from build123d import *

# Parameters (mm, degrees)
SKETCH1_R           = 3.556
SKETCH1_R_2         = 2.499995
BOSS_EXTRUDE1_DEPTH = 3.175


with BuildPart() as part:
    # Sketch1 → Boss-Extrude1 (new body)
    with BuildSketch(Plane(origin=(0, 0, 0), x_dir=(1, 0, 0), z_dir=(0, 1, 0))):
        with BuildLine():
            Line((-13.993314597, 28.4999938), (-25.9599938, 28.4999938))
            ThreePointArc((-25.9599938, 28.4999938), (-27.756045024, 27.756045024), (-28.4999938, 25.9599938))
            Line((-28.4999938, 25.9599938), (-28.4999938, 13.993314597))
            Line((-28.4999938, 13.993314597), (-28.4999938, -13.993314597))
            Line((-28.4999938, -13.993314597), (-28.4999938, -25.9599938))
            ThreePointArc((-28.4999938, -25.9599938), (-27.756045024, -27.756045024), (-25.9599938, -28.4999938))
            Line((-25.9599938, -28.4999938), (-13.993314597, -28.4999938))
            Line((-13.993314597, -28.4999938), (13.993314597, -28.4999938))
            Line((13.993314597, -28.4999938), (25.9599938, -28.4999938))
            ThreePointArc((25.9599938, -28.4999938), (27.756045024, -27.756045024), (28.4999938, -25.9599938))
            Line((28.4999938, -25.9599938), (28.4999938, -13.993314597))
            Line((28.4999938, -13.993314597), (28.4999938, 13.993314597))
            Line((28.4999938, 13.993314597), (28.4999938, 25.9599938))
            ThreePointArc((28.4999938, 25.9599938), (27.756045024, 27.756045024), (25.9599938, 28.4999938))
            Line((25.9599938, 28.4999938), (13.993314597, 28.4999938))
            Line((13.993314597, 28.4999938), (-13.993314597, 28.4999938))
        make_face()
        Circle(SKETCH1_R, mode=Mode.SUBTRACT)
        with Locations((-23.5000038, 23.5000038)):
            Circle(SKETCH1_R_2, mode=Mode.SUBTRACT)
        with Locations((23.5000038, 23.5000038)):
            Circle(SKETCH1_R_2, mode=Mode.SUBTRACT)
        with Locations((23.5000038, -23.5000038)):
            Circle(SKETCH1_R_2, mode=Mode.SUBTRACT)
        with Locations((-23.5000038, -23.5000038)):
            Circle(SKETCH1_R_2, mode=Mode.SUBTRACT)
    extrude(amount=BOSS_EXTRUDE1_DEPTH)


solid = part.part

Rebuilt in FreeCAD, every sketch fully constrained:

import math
import FreeCAD as App
import Part
import Sketcher
from FreeCAD import Vector
Q = App.Units.Quantity

doc = App.newDocument("Part")
body = doc.addObject("PartDesign::Body", "Body")

# Sketch on XZ plane
sketch1 = doc.addObject("Sketcher::SketchObject", "Sketch")
body.addObject(sketch1)
sketch1.AttachmentSupport = (doc.XZ_Plane, [""])
sketch1.MapMode = "FlatFace"
sketch1.addGeometry(Part.ArcOfCircle(Part.Circle(Vector(-25.959994, -25.959994, 0), Vector(0, 0, 1), 2.54), math.radians(-180), math.radians(-90)), False)
sketch1.addGeometry(Part.LineSegment(Vector(-28.499994, -25.959994, 0), Vector(-28.499994, 25.959994, 0)), False)
sketch1.addGeometry(Part.ArcOfCircle(Part.Circle(Vector(-25.959994, 25.959994, 0), Vector(0, 0, 1), 2.54), math.radians(90), math.radians(180)), False)
sketch1.addGeometry(Part.LineSegment(Vector(-25.959994, 28.499994, 0), Vector(25.959994, 28.499994, 0)), False)
sketch1.addGeometry(Part.ArcOfCircle(Part.Circle(Vector(25.959994, 25.959994, 0), Vector(0, 0, 1), 2.54), math.radians(0), math.radians(90)), False)
sketch1.addGeometry(Part.LineSegment(Vector(28.499994, 25.959994, 0), Vector(28.499994, -25.959994, 0)), False)
sketch1.addGeometry(Part.ArcOfCircle(Part.Circle(Vector(25.959994, -25.959994, 0), Vector(0, 0, 1), 2.54), math.radians(-90), math.radians(0)), False)
sketch1.addGeometry(Part.LineSegment(Vector(25.959994, -28.499994, 0), Vector(-25.959994, -28.499994, 0)), False)
sketch1.addGeometry(Part.Circle(Vector(-23.500004, 23.500004, 0), Vector(0, 0, 1), 2.499995), False)
sketch1.addGeometry(Part.Circle(Vector(23.500004, 23.500004, 0), Vector(0, 0, 1), 2.499995), False)
sketch1.addGeometry(Part.Circle(Vector(-23.500004, -23.500004, 0), Vector(0, 0, 1), 2.499995), False)
sketch1.addGeometry(Part.Circle(Vector(0, 0, 0), Vector(0, 0, 1), 3.556), False)
sketch1.addGeometry(Part.Circle(Vector(23.500004, -23.500004, 0), Vector(0, 0, 1), 2.499995), False)
sketch1.addConstraint(Sketcher.Constraint("Tangent", 0, 1, 1, 1))
sketch1.addConstraint(Sketcher.Constraint("Tangent", 1, 2, 2, 2))
sketch1.addConstraint(Sketcher.Constraint("Tangent", 2, 1, 3, 1))
sketch1.addConstraint(Sketcher.Constraint("Tangent", 3, 2, 4, 2))
sketch1.addConstraint(Sketcher.Constraint("Tangent", 4, 1, 5, 1))
sketch1.addConstraint(Sketcher.Constraint("Tangent", 5, 2, 6, 2))
sketch1.addConstraint(Sketcher.Constraint("Tangent", 6, 1, 7, 1))
sketch1.addConstraint(Sketcher.Constraint("Tangent", 7, 2, 0, 2))
sketch1.addConstraint(Sketcher.Constraint("Vertical", 1))
sketch1.addConstraint(Sketcher.Constraint("Horizontal", 3))
sketch1.addConstraint(Sketcher.Constraint("Vertical", 5))
sketch1.addConstraint(Sketcher.Constraint("Horizontal", 7))
sketch1.addConstraint(Sketcher.Constraint("Coincident", 11, 3, -1, 1))
sketch1.addConstraint(Sketcher.Constraint("Equal", 0, 2))
sketch1.addConstraint(Sketcher.Constraint("Equal", 2, 4))
sketch1.addConstraint(Sketcher.Constraint("Equal", 4, 6))
sketch1.addConstraint(Sketcher.Constraint("Equal", 8, 9))
sketch1.addConstraint(Sketcher.Constraint("Equal", 9, 10))
sketch1.addConstraint(Sketcher.Constraint("Equal", 10, 12))
sketch1.addConstraint(Sketcher.Constraint("Symmetric", 0, 3, 4, 3, -1, 1))
sketch1.addConstraint(Sketcher.Constraint("Symmetric", 9, 3, 10, 3, -1, 1))
sketch1.addConstraint(Sketcher.Constraint("Symmetric", 8, 3, 12, 3, -1, 1))
sketch1.addConstraint(Sketcher.Constraint("Symmetric", 8, 3, 9, 3, -2))
sketch1.addConstraint(Sketcher.Constraint("Equal", 7, 1))
sketch1.addConstraint(Sketcher.Constraint("Radius", 0, Q("0.1 in")))
sketch1.addConstraint(Sketcher.Constraint("Diameter", 11, Q("0.28 in")))
sketch1.addConstraint(Sketcher.Constraint("Diameter", 8, Q("4.99999 mm")))
sketch1.addConstraint(Sketcher.Constraint("DistanceX", 3, 1, 3, 2, Q("51.919988 mm")))
sketch1.addConstraint(Sketcher.Constraint("DistanceX", 2, 3, 8, 3, Q("2.45999 mm")))
sketch1.addConstraint(Sketcher.Constraint("DistanceY", 8, 3, 2, 3, Q("2.45999 mm")))
pad1 = doc.addObject("PartDesign::Pad", "Pad")
body.addObject(pad1)
pad1.Profile = sketch1
pad1.Length = Q("0.125 in")
pad1.Reversed = True

doc.recompute()
